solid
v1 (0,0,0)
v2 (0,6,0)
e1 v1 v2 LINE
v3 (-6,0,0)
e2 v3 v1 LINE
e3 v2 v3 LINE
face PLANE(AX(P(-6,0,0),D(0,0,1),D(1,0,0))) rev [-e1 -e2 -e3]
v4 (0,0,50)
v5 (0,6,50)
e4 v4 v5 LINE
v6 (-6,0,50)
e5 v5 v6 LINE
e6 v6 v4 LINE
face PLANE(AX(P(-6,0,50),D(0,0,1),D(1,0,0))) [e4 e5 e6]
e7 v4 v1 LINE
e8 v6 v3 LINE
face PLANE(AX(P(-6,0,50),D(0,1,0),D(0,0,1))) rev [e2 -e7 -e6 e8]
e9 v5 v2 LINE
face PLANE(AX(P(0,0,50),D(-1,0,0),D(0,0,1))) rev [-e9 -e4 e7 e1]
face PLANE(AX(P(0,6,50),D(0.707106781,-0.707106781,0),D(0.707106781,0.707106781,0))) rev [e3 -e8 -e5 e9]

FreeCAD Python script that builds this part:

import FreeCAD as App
import Part
import Sketcher
from FreeCAD import Vector
Q = App.Units.Quantity


def add_polygon(sketch, points):
    """Adds a closed chain of lines whose ends are joined by coincident constraints."""
    first, n = sketch.GeometryCount, len(points)
    for a, b in zip(points, points[1:] + points[:1]):
        sketch.addGeometry(Part.LineSegment(App.Vector(*a, 0), App.Vector(*b, 0)), False)
    for i in range(n):
        sketch.addConstraint(Sketcher.Constraint("Coincident", first + i, 2, first + (i + 1) % n, 1))

doc = App.newDocument("Part")
body = doc.addObject("PartDesign::Body", "Body")

# Sketch on XY plane
sketch1 = body.newObject("Sketcher::SketchObject", "Sketch")
sketch1.AttachmentSupport = (doc.getObject("XY_Plane"), [""])
sketch1.MapMode = "FlatFace"
add_polygon(sketch1, [(-6, 0), (0, 0), (0, 6)])  # lines 0-2
sketch1.addConstraint(Sketcher.Constraint("Horizontal", 0))
sketch1.addConstraint(Sketcher.Constraint("Vertical", 1))
sketch1.addConstraint(Sketcher.Constraint("Coincident", 0, 2, -1, 1))
sketch1.addConstraint(Sketcher.Constraint("Equal", 0, 1))
sketch1.addConstraint(Sketcher.Constraint("DistanceX", 0, 1, 0, 2, Q("6 mm")))
pad1 = body.newObject("PartDesign::Pad", "Pad")
pad1.Profile = sketch1
pad1.Length = 50

doc.recompute()
